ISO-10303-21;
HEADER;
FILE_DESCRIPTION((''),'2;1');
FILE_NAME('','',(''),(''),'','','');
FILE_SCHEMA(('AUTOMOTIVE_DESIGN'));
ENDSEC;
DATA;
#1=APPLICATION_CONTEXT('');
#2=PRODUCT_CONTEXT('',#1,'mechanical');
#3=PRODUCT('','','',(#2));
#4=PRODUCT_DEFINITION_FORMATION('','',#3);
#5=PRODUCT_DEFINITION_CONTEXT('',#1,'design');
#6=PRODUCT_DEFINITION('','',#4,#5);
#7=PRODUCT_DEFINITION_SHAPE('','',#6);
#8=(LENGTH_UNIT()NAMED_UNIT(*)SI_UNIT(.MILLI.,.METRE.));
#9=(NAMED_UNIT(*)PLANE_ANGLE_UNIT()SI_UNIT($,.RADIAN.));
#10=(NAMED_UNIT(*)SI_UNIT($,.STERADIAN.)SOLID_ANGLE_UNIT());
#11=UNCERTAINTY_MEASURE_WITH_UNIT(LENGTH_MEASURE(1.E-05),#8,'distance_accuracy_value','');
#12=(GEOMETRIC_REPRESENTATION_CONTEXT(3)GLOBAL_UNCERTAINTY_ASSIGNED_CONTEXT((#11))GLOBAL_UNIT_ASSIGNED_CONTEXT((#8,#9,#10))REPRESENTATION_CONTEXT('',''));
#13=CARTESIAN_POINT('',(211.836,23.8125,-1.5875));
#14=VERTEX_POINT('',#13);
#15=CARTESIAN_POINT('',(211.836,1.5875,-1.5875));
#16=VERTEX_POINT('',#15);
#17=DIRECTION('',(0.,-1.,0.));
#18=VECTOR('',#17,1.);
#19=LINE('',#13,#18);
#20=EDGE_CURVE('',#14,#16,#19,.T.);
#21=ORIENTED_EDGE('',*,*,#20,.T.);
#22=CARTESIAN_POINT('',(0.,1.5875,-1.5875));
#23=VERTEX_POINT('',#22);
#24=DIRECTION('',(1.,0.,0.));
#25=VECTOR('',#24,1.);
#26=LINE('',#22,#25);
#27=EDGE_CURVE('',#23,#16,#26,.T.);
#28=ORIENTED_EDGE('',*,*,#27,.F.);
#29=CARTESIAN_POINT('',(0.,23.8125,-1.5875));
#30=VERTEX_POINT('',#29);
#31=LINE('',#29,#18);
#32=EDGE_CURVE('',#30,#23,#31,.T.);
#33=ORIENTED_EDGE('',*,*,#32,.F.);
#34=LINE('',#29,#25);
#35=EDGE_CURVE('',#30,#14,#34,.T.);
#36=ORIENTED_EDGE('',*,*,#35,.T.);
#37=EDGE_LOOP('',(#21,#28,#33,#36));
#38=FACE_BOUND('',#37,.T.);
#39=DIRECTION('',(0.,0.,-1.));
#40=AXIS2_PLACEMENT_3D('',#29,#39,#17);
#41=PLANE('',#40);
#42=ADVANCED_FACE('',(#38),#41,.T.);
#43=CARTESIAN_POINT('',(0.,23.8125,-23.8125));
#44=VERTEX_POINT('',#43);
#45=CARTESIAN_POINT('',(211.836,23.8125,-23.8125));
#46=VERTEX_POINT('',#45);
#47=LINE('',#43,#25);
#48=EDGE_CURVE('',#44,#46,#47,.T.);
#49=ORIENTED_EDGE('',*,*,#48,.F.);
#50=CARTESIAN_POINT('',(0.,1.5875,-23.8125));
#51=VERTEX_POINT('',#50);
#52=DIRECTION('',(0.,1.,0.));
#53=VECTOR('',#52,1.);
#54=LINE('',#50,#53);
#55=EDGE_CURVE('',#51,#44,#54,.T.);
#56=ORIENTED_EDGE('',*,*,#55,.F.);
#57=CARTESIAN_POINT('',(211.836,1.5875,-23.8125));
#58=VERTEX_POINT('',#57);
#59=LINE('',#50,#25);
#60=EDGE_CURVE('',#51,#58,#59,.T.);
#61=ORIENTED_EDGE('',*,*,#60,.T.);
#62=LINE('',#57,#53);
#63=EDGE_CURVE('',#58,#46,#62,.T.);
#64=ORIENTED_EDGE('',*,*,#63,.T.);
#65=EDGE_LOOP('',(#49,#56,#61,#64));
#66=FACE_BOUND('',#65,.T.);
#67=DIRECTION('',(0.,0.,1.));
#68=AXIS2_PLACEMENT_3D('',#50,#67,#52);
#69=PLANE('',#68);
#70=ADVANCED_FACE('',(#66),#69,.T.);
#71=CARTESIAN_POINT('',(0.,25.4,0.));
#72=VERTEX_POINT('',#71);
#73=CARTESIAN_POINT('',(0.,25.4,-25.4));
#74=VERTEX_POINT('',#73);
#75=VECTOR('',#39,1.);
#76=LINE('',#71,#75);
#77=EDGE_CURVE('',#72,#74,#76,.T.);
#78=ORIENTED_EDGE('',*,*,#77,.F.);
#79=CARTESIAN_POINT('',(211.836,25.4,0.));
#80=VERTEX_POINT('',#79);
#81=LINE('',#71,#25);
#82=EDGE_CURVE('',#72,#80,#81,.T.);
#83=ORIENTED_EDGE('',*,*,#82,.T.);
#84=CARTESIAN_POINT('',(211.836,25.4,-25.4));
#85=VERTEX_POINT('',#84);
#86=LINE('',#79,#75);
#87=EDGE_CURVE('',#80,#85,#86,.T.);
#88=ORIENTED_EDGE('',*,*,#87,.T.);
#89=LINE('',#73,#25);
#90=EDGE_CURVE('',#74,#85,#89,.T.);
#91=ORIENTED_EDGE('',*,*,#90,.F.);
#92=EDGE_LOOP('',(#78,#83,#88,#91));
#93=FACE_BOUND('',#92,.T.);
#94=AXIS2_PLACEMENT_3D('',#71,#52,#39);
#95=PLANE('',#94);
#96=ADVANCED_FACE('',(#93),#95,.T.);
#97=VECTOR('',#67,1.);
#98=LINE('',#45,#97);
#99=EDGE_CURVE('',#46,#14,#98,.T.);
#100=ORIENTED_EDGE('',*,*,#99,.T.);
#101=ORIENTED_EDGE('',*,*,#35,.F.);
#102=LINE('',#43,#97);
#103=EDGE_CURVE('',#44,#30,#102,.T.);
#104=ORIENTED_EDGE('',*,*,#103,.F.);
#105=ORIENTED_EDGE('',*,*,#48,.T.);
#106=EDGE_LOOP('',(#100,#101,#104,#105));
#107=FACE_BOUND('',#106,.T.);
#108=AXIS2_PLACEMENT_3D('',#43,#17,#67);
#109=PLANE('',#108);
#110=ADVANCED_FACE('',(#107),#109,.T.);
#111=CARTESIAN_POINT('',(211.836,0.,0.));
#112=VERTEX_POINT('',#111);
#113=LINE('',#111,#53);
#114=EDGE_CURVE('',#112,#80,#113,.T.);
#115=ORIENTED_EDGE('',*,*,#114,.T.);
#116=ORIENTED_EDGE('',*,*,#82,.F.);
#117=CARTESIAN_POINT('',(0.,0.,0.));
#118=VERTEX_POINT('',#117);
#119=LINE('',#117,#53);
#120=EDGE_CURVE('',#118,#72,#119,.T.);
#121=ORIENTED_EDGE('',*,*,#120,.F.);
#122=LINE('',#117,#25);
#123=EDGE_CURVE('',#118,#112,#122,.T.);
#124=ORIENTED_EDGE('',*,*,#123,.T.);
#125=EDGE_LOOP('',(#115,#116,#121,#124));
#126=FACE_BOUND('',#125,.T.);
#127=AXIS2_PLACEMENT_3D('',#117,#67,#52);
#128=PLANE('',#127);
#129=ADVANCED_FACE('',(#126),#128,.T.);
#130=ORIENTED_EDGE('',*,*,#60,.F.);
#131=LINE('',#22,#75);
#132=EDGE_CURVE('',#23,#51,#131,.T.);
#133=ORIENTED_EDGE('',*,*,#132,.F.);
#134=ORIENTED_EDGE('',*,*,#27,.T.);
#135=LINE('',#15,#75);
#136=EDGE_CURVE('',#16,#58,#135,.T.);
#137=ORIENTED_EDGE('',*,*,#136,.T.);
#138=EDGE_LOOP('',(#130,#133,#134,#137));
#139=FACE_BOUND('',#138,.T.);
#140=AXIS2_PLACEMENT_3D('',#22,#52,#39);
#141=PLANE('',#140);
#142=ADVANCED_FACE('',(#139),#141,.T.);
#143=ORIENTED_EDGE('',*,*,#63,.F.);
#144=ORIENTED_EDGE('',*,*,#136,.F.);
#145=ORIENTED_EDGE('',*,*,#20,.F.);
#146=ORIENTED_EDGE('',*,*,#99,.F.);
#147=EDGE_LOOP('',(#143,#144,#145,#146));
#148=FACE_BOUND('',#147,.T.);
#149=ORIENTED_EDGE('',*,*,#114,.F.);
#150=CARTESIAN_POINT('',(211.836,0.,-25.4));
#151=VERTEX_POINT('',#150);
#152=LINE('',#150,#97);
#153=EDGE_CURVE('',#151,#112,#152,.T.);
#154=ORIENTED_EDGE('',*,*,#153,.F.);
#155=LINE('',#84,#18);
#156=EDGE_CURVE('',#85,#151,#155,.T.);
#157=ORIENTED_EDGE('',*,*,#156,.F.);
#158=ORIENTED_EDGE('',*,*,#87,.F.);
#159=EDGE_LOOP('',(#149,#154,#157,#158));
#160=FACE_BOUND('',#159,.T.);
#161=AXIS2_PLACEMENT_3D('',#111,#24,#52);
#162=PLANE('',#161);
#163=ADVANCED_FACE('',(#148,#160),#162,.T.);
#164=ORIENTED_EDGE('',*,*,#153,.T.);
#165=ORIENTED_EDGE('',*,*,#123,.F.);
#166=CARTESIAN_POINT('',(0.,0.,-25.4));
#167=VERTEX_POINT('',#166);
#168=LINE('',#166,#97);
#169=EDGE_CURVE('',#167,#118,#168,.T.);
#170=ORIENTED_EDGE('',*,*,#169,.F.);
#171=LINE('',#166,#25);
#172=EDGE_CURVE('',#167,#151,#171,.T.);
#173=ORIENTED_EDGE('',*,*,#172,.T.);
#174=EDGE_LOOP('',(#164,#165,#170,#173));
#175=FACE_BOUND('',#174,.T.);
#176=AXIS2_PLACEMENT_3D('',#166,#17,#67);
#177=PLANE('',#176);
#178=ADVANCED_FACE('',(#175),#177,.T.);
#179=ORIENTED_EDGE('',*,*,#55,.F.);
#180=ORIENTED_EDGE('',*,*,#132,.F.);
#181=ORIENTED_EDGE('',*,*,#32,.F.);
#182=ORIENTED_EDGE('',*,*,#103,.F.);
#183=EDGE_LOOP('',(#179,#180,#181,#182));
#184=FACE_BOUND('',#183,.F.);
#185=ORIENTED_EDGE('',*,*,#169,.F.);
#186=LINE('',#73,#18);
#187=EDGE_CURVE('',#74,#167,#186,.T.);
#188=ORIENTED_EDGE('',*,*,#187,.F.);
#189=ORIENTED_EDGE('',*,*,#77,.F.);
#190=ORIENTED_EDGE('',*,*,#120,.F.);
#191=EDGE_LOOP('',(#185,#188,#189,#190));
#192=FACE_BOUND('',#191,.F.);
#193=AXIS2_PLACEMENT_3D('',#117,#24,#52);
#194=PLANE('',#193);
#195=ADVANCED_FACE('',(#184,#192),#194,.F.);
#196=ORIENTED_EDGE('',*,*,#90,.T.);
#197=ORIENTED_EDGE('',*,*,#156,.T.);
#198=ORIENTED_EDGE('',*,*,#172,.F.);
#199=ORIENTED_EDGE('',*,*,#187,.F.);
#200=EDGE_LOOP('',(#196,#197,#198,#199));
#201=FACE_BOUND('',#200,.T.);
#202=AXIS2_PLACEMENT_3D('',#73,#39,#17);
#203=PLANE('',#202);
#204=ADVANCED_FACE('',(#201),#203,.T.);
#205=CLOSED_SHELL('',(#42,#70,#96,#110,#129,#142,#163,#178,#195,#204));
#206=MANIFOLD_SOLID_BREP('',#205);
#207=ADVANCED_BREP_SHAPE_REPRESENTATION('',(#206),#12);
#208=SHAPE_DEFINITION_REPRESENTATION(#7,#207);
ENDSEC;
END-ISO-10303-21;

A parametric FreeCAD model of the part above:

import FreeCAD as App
import Part
import Sketcher
Q = App.Units.Quantity

doc = App.newDocument("Part")
params = doc.addObject("Spreadsheet::Sheet", "Params")
for row, (alias, value) in enumerate([
    ("sketch1_width", "1 in"),
    ("pad1_length", "8.34 in"),
], start=1):
    params.set(f"A{row}", alias)
    params.set(f"B{row}", "=" + value)
    params.setAlias(f"B{row}", alias)

body = doc.addObject("PartDesign::Body", "Body")

# Sketch on YZ plane
sketch1 = body.newObject("Sketcher::SketchObject", "Sketch")
sketch1.AttachmentSupport = (doc.getObject("YZ_Plane"), [""])
sketch1.MapMode = "FlatFace"
sketch1.addGeometry([
    Part.LineSegment(App.Vector(25, 0, 0), App.Vector(0, 0, 0)),  # 0
    Part.LineSegment(App.Vector(0, 0, 0), App.Vector(0, -25, 0)),  # 1
    Part.LineSegment(App.Vector(0, -25, 0), App.Vector(25, -25, 0)),  # 2
    Part.LineSegment(App.Vector(25, -25, 0), App.Vector(25, 0, 0)),  # 3
    Part.LineSegment(App.Vector(24, -2, 0), App.Vector(24, -24, 0)),  # 4
    Part.LineSegment(App.Vector(24, -24, 0), App.Vector(2, -24, 0)),  # 5
    Part.LineSegment(App.Vector(2, -24, 0), App.Vector(2, -2, 0)),  # 6
    Part.LineSegment(App.Vector(2, -2, 0), App.Vector(24, -2, 0)),  # 7
], False)
sketch1.addConstraint([
    Sketcher.Constraint("Coincident", 0, 2, 1, 1),
    Sketcher.Constraint("Coincident", 1, 2, 2, 1),
    Sketcher.Constraint("Coincident", 2, 2, 3, 1),
    Sketcher.Constraint("Coincident", 3, 2, 0, 1),
    Sketcher.Constraint("Coincident", 4, 2, 5, 1),
    Sketcher.Constraint("Coincident", 5, 2, 6, 1),
    Sketcher.Constraint("Coincident", 6, 2, 7, 1),
    Sketcher.Constraint("Coincident", 7, 2, 4, 1),
    Sketcher.Constraint("Horizontal", 0),
    Sketcher.Constraint("Vertical", 1),
    Sketcher.Constraint("Horizontal", 2),
    Sketcher.Constraint("Vertical", 3),
    Sketcher.Constraint("Vertical", 4),
    Sketcher.Constraint("Horizontal", 5),
    Sketcher.Constraint("Vertical", 6),
    Sketcher.Constraint("Horizontal", 7),
    Sketcher.Constraint("Coincident", 0, 2, -1, 1),
    Sketcher.Constraint("Equal", 2, 1),
    Sketcher.Constraint("Equal", 7, 4),
    Sketcher.Constraint("DistanceX", 0, 2, 0, 1, Q("1 in")),
    Sketcher.Constraint("DistanceX", -1, 1, 5, 2, Q("0.0625 in")),
    Sketcher.Constraint("DistanceY", 6, 2, -1, 1, Q("0.0625 in")),
    Sketcher.Constraint("DistanceX", 4, 2, 2, 2, Q("0.0625 in")),
])
sketch1.setExpression("Constraints[19]", "Params.sketch1_width")
pad1 = body.newObject("PartDesign::Pad", "Pad")
pad1.Profile = sketch1
pad1.setExpression("Length", "Params.pad1_length")

doc.recompute()
